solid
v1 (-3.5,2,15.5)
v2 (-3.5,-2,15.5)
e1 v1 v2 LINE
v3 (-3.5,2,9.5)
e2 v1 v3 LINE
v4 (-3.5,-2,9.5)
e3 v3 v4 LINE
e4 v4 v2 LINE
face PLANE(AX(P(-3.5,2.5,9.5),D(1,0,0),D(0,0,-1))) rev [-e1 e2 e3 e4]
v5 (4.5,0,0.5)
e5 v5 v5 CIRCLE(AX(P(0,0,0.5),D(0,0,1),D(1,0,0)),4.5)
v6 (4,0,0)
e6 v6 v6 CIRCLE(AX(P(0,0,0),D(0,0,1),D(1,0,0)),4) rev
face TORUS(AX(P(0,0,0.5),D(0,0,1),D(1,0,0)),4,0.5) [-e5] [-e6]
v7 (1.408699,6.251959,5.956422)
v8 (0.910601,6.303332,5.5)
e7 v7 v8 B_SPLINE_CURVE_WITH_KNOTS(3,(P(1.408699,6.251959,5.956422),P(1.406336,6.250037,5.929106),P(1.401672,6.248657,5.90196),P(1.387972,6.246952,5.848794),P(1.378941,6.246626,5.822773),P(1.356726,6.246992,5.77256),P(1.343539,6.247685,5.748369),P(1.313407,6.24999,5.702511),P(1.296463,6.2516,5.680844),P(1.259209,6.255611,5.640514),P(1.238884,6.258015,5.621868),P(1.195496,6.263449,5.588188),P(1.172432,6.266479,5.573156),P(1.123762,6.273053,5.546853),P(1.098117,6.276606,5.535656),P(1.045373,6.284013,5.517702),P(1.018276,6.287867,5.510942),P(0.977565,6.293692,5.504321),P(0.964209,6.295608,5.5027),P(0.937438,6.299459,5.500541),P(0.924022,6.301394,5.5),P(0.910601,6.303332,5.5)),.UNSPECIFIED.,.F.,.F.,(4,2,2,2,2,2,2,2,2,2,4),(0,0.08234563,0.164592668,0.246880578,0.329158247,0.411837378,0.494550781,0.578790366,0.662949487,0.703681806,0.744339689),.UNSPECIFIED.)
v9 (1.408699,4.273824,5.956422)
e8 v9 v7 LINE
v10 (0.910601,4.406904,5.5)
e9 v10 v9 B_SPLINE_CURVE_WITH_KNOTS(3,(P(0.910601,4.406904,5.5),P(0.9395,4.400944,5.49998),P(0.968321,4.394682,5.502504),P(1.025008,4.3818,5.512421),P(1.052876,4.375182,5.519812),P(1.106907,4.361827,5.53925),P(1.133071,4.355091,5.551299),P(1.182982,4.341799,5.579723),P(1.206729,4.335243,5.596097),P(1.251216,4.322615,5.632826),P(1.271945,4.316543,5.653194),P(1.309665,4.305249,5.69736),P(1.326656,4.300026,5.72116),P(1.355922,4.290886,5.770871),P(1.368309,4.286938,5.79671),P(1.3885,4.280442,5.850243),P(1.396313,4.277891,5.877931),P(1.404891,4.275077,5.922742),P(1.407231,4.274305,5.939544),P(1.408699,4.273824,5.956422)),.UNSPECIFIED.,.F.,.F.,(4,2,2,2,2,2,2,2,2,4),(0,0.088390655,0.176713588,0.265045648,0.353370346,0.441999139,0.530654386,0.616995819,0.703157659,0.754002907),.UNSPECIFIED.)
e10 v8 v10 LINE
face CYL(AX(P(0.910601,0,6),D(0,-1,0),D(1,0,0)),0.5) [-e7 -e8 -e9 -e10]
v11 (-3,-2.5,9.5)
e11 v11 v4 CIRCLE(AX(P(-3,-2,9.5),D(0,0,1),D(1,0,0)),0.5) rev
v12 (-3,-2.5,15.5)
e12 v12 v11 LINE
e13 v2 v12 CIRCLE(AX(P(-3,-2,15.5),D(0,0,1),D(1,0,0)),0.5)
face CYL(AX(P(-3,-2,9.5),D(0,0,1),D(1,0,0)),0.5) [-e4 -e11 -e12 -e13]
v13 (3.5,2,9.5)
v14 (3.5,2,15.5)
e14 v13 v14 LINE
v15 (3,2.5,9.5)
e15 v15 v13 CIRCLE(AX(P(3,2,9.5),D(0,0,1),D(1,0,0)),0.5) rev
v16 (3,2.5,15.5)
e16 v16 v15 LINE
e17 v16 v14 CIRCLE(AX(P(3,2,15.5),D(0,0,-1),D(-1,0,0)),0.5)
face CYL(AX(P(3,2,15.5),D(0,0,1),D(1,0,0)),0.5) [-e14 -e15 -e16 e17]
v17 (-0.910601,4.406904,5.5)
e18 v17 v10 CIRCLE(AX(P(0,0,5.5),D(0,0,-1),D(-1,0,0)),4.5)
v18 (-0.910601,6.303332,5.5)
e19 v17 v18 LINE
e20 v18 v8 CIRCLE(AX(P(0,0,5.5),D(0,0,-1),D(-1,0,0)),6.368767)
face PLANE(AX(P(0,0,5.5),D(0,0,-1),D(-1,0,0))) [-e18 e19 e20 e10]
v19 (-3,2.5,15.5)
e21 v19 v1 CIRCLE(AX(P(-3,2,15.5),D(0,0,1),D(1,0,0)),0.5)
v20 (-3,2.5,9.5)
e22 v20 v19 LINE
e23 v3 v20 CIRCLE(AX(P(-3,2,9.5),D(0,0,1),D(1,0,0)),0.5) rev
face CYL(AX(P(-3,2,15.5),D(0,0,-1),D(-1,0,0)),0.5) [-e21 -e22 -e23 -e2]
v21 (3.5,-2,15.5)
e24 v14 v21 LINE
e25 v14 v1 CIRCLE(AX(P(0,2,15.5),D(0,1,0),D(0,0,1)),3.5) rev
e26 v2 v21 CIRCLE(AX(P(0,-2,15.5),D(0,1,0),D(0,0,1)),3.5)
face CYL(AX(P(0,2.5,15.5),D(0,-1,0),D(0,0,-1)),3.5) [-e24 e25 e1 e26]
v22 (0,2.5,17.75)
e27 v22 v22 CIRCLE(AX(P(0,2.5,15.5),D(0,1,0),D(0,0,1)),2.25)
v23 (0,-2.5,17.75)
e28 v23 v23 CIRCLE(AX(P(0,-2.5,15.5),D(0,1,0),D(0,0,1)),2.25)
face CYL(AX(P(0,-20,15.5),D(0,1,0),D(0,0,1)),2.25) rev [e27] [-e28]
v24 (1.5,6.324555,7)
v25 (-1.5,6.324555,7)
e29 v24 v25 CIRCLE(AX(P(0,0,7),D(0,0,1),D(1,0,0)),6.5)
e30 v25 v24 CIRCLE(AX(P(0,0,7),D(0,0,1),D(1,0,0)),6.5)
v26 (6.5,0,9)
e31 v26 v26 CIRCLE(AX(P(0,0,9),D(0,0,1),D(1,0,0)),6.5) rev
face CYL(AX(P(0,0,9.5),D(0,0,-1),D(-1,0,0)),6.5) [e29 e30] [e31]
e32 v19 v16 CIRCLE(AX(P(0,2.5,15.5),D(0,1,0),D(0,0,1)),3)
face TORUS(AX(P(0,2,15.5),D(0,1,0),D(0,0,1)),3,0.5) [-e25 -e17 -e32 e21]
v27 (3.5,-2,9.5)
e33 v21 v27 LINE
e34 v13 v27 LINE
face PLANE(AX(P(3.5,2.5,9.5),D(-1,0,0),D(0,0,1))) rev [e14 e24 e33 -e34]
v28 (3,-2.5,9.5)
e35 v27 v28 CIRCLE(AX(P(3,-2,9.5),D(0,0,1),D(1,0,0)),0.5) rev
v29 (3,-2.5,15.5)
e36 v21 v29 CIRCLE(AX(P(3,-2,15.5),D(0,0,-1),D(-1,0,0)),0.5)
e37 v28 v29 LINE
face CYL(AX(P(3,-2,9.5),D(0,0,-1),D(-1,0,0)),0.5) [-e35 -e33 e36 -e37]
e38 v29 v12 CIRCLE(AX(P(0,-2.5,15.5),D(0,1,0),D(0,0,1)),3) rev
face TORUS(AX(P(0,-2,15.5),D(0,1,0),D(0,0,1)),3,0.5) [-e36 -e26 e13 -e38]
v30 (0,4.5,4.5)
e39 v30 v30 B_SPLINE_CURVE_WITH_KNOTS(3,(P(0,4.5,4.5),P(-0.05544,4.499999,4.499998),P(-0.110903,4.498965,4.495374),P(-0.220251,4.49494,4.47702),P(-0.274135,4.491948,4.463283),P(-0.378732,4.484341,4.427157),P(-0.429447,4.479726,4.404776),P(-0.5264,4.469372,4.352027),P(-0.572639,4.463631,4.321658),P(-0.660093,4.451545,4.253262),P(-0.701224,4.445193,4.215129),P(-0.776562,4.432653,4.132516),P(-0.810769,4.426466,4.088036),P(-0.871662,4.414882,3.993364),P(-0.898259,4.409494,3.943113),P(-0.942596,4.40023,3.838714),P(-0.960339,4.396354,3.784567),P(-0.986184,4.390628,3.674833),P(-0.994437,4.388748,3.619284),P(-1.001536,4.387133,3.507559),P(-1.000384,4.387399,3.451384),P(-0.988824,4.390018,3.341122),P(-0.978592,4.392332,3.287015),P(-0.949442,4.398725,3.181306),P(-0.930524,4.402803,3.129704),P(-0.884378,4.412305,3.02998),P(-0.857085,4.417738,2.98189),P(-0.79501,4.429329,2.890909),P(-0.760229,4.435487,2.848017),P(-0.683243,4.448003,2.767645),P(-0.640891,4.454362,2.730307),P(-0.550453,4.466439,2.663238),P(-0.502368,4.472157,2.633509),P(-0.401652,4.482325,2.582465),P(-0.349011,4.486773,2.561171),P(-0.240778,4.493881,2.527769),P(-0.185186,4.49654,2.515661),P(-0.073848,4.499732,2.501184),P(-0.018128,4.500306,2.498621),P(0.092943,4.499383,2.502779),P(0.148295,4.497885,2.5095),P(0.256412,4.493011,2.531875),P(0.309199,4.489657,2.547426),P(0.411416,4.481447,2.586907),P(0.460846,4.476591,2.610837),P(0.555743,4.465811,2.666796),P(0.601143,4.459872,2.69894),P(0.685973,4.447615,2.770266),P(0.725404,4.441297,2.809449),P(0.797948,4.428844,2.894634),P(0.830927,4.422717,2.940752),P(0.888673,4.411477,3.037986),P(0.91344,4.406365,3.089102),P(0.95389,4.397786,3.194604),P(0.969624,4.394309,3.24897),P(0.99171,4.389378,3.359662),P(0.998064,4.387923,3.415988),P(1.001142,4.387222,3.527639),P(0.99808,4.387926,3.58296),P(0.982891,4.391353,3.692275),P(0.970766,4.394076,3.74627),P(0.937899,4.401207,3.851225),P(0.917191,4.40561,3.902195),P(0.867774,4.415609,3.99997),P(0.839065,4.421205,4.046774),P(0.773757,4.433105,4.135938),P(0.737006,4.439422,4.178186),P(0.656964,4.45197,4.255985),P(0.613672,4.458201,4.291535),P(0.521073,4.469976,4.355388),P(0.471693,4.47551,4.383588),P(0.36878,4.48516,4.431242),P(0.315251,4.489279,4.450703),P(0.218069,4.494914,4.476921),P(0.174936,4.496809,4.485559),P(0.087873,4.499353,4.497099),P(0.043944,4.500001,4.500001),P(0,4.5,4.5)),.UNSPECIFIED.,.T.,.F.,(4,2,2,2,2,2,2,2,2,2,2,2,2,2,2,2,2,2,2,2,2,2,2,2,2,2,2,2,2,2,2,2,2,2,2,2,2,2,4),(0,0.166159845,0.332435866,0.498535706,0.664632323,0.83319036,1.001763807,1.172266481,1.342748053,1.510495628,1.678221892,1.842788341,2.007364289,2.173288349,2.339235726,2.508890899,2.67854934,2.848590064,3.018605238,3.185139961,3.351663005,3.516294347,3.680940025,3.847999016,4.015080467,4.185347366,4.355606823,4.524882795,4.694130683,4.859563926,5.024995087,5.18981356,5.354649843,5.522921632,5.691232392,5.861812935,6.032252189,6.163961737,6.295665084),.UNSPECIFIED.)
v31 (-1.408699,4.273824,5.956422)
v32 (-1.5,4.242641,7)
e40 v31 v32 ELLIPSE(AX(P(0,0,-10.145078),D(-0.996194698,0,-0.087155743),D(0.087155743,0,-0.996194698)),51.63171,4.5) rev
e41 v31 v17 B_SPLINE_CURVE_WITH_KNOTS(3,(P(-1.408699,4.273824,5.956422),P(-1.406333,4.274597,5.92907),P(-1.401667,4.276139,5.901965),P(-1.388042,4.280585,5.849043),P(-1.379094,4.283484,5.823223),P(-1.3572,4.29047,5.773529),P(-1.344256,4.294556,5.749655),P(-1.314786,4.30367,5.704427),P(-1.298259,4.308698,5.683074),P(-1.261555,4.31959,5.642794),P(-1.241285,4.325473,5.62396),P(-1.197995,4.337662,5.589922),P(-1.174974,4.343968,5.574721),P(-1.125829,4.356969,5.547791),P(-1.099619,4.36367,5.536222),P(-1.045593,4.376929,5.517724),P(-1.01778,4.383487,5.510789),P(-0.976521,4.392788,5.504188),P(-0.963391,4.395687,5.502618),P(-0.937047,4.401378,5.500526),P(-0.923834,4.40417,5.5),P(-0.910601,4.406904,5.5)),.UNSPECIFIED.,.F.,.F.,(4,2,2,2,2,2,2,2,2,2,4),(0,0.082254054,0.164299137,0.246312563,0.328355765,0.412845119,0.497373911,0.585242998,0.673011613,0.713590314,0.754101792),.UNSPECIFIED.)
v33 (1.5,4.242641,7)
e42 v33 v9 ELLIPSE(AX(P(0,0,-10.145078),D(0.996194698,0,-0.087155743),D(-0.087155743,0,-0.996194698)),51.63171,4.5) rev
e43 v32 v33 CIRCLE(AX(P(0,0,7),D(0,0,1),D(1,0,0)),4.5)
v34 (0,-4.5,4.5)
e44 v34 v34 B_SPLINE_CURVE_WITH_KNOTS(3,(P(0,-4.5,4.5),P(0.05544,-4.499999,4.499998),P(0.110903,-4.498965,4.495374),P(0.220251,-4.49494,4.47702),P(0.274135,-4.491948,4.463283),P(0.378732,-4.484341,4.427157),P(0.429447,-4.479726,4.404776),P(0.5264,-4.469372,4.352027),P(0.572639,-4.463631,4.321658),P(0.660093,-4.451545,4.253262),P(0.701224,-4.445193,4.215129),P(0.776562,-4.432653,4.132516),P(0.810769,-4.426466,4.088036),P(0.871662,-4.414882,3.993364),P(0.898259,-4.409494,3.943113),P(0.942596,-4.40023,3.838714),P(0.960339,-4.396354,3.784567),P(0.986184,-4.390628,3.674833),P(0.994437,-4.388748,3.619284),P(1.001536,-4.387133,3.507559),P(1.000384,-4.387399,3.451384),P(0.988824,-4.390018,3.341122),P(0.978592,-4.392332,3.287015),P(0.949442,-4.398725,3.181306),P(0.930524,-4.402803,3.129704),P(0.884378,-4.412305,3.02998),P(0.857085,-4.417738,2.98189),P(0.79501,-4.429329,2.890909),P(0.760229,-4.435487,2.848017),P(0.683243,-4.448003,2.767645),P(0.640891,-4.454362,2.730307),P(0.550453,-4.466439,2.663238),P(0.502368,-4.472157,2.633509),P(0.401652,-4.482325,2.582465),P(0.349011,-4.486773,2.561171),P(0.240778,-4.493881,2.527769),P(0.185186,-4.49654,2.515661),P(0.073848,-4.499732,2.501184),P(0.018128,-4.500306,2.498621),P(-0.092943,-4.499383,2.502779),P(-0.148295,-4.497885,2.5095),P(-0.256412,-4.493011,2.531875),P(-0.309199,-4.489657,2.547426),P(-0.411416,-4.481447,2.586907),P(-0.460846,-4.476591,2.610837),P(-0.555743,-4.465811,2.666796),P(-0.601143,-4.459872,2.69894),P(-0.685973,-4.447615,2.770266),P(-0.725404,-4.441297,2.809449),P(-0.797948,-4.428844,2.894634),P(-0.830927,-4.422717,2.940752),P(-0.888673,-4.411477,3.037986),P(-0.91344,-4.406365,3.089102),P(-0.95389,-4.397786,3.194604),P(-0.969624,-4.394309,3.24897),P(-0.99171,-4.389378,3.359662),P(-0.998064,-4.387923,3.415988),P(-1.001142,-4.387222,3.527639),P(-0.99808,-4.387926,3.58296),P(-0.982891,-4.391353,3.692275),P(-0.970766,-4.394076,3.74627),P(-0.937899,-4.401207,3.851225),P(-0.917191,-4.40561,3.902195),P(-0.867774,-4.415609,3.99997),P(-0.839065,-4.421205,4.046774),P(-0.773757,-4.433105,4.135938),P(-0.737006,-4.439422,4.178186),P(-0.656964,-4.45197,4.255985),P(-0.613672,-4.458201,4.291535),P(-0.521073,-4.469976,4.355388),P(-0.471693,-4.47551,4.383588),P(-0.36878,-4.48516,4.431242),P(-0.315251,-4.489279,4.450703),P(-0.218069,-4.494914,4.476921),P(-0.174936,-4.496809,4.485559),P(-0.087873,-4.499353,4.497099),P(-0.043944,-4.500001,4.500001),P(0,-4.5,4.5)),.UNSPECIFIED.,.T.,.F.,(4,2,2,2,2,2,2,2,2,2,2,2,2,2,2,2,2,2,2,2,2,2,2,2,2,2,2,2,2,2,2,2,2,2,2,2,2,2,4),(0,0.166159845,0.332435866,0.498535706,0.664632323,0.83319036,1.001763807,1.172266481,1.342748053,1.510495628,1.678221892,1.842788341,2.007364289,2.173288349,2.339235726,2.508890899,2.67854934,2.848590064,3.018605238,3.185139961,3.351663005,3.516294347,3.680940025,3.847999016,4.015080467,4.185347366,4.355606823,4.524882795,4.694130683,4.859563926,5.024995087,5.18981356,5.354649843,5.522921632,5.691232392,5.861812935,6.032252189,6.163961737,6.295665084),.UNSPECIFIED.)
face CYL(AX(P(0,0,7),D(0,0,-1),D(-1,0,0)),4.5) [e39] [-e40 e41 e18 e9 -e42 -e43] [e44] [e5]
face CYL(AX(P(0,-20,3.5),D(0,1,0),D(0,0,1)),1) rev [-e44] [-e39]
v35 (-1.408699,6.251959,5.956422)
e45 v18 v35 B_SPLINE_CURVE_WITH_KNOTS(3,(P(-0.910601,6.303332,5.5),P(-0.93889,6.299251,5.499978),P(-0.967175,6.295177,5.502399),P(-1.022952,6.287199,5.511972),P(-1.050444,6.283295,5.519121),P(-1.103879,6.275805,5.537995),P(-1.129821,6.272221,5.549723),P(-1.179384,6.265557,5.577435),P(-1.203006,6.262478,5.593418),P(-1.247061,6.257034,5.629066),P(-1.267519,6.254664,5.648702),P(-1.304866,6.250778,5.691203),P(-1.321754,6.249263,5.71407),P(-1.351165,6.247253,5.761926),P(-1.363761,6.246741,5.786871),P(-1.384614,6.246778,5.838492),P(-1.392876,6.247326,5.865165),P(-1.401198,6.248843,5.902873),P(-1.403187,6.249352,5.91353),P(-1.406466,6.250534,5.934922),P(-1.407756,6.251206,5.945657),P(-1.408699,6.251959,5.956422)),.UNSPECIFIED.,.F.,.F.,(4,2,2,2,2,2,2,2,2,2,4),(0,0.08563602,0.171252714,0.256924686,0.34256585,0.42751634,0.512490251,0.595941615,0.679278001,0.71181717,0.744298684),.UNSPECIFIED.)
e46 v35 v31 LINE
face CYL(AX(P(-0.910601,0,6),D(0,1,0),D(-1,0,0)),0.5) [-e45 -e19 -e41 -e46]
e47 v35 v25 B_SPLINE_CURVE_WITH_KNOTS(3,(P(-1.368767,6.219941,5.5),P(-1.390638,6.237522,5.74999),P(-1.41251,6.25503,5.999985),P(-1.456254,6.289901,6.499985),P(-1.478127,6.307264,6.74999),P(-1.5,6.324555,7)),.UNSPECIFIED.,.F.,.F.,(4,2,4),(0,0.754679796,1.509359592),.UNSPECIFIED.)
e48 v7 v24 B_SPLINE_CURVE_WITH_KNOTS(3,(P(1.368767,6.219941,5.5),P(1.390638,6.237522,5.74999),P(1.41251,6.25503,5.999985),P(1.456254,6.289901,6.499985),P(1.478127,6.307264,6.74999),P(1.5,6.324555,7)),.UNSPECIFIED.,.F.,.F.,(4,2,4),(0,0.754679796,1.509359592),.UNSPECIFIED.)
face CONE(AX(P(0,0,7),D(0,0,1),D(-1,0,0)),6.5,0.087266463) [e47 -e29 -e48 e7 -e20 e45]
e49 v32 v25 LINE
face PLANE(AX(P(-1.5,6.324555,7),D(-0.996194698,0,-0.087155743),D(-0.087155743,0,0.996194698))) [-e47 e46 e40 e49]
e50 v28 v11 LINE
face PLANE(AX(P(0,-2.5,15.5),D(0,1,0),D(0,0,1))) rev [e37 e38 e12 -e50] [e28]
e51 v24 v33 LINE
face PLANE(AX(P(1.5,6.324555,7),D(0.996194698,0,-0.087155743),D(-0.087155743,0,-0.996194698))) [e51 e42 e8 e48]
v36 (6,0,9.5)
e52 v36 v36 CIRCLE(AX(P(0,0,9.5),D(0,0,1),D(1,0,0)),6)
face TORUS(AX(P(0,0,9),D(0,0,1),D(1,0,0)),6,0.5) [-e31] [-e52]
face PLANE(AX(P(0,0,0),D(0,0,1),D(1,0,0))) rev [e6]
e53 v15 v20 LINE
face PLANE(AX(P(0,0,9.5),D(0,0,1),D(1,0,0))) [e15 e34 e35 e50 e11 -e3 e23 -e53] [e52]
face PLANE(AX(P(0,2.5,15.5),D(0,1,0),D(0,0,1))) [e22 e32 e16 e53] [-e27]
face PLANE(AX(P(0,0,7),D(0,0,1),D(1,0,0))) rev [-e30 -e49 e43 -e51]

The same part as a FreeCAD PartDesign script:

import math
import FreeCAD as App
import Part
import Sketcher
from FreeCAD import Vector


def edges_at(feature, points):
    """Names of the edges that pass closest to the given points."""
    edges = feature.Shape.Edges
    near = lambda p: min(range(len(edges)), key=lambda i: edges[i].distToShape(Part.Vertex(*p))[0])
    return sorted({f"Edge{near(p) + 1}" for p in points})

doc = App.newDocument("Part")
body = doc.addObject("PartDesign::Body", "Body")

sketch1 = body.newObject("Sketcher::SketchObject", "Sketch")
sketch1.AttachmentSupport = (doc.getObject("XY_Plane"), [""])
sketch1.MapMode = "FlatFace"
sketch1.addGeometry(Part.Circle(Vector(0, 0, 0), Vector(0, 0, 1), 4.5), False)
sketch1.addConstraint(Sketcher.Constraint("Coincident", 0, 3, -1, 1))
sketch1.addConstraint(Sketcher.Constraint("Diameter", 0, 9.0))
pad1 = body.newObject("PartDesign::Pad", "Pad")
pad1.Profile = sketch1
pad1.Length = 7

sketch2 = body.newObject("Sketcher::SketchObject", "Sketch001")
sketch2.AttachmentSupport = (doc.getObject("XY_Plane"), [""])
sketch2.MapMode = "FlatFace"
sketch2.AttachmentOffset = App.Placement(Vector(0, 0, 7), App.Rotation())
sketch2.addGeometry(Part.Circle(Vector(0, 0, 0), Vector(0, 0, 1), 6), False)
sketch2.addConstraint(Sketcher.Constraint("Coincident", 0, 3, -1, 1))
sketch2.addConstraint(Sketcher.Constraint("Diameter", 0, 13.0))
pad2 = body.newObject("PartDesign::Pad", "Pad001")
pad2.Profile = sketch2
pad2.Length = 2.5

sketch3 = body.newObject("Sketcher::SketchObject", "Sketch002")
sketch3.AttachmentSupport = (doc.getObject("XZ_Plane"), [""])
sketch3.MapMode = "FlatFace"
sketch3.addGeometry(Part.LineSegment(Vector(-3.5, 9.5, 0), Vector(-3.5, 15.5, 0)), False)
sketch3.addGeometry(Part.ArcOfCircle(Part.Circle(Vector(0, 15.5, 0), Vector(0, 0, 1), 3.5), math.radians(0), math.radians(180)), False)
sketch3.addGeometry(Part.LineSegment(Vector(3.5, 15.5, 0), Vector(3.5, 9.5, 0)), False)
sketch3.addGeometry(Part.LineSegment(Vector(3.5, 9.5, 0), Vector(-3.5, 9.5, 0)), False)
sketch3.addConstraint(Sketcher.Constraint("Tangent", 0, 2, 1, 2))
sketch3.addConstraint(Sketcher.Constraint("Tangent", 1, 1, 2, 1))
sketch3.addConstraint(Sketcher.Constraint("Coincident", 2, 2, 3, 1))
sketch3.addConstraint(Sketcher.Constraint("Coincident", 3, 2, 0, 1))
sketch3.addConstraint(Sketcher.Constraint("Vertical", 0))
sketch3.addConstraint(Sketcher.Constraint("Vertical", 2))
sketch3.addConstraint(Sketcher.Constraint("Horizontal", 3))
sketch3.addConstraint(Sketcher.Constraint("PointOnObject", 1, 3, -2))
sketch3.addConstraint(Sketcher.Constraint("Radius", 1, 3.5))
sketch3.addConstraint(Sketcher.Constraint("DistanceY", 0, 1, 0, 2, 6.0))
sketch3.addConstraint(Sketcher.Constraint("DistanceY", -1, 1, 1, 3, 15.5))
pad3 = body.newObject("PartDesign::Pad", "Pad002")
pad3.Profile = sketch3
pad3.Length = 5
pad3.Midplane = True

sketch4 = body.newObject("Sketcher::SketchObject", "Sketch003")
sketch4.AttachmentSupport = (doc.getObject("XZ_Plane"), [""])
sketch4.MapMode = "FlatFace"
sketch4.AttachmentOffset = App.Placement(Vector(0, 0, -2.5), App.Rotation())
sketch4.addGeometry(Part.Circle(Vector(0, 15.5, 0), Vector(0, 0, 1), 2.2), False)
sketch4.addGeometry(Part.Circle(Vector(0, 3.5, 0), Vector(0, 0, 1), 1), False)
sketch4.addConstraint(Sketcher.Constraint("PointOnObject", 0, 3, -2))
sketch4.addConstraint(Sketcher.Constraint("PointOnObject", 1, 3, -2))
sketch4.addConstraint(Sketcher.Constraint("Diameter", 1, 2.0))
sketch4.addConstraint(Sketcher.Constraint("Diameter", 0, 4.5))
sketch4.addConstraint(Sketcher.Constraint("DistanceY", 1, 3, 0, 3, 12.0))
sketch4.addConstraint(Sketcher.Constraint("DistanceY", -1, 1, 0, 3, 15.5))
pocket1 = body.newObject("PartDesign::Pocket", "Pocket")
pocket1.Profile = sketch4
pocket1.Length = 45
pocket1.Midplane = True

sketch5 = body.newObject("Sketcher::SketchObject", "Sketch004")
sketch5.AttachmentSupport = (doc.getObject("XY_Plane"), [""])
sketch5.MapMode = "FlatFace"
sketch5.AttachmentOffset = App.Placement(Vector(0, 0, 7), App.Rotation())
sketch5.addGeometry(Part.ArcOfCircle(Part.Circle(Vector(0, 0, 0), Vector(0, 0, 1), 6.5), math.radians(77), math.radians(103)), False)
sketch5.addGeometry(Part.LineSegment(Vector(1.5, 6.3, 0), Vector(1.5, 4, 0)), False)
sketch5.addGeometry(Part.LineSegment(Vector(1.5, 4, 0), Vector(-1.5, 4, 0)), False)
sketch5.addGeometry(Part.LineSegment(Vector(-1.5, 4, 0), Vector(-1.5, 6.3, 0)), False)
sketch5.addConstraint(Sketcher.Constraint("Coincident", 0, 1, 1, 1))
sketch5.addConstraint(Sketcher.Constraint("Coincident", 1, 2, 2, 1))
sketch5.addConstraint(Sketcher.Constraint("Coincident", 2, 2, 3, 1))
sketch5.addConstraint(Sketcher.Constraint("Coincident", 3, 2, 0, 2))
sketch5.addConstraint(Sketcher.Constraint("Vertical", 1))
sketch5.addConstraint(Sketcher.Constraint("Horizontal", 2))
sketch5.addConstraint(Sketcher.Constraint("Vertical", 3))
sketch5.addConstraint(Sketcher.Constraint("Coincident", 0, 3, -1, 1))
sketch5.addConstraint(Sketcher.Constraint("Horizontal", 0, 1, 3, 2))
sketch5.addConstraint(Sketcher.Constraint("Radius", 0, 6.5))
sketch5.addConstraint(Sketcher.Constraint("DistanceX", 2, 2, 2, 1, 3.0))
sketch5.addConstraint(Sketcher.Constraint("DistanceY", -1, 1, 1, 2, 4.0))
pad4 = body.newObject("PartDesign::Pad", "Pad003")
pad4.Profile = sketch5
pad4.Length = 1.5
pad4.Reversed = True
pad4.TaperAngle = -5
doc.recompute()

fillet = body.newObject("PartDesign::Fillet", "Fillet")
fillet.Base = (pad4, edges_at(pad4, [
    (-6.5, 0, 9.5),
    (-1.369, 5.253, 5.5),
    (-4.5, 0, 0),
    (1.369, 5.253, 5.5),
    (-3.5, -2.5, 12.5),
    (-3.5, 2.5, 12.5),
    (0, -2.5, 19),
    (3.5, -2.5, 12.5),
    (3.5, 2.5, 12.5),
    (0, 2.5, 19),
]))
fillet.Radius = 0.5

doc.recompute()
